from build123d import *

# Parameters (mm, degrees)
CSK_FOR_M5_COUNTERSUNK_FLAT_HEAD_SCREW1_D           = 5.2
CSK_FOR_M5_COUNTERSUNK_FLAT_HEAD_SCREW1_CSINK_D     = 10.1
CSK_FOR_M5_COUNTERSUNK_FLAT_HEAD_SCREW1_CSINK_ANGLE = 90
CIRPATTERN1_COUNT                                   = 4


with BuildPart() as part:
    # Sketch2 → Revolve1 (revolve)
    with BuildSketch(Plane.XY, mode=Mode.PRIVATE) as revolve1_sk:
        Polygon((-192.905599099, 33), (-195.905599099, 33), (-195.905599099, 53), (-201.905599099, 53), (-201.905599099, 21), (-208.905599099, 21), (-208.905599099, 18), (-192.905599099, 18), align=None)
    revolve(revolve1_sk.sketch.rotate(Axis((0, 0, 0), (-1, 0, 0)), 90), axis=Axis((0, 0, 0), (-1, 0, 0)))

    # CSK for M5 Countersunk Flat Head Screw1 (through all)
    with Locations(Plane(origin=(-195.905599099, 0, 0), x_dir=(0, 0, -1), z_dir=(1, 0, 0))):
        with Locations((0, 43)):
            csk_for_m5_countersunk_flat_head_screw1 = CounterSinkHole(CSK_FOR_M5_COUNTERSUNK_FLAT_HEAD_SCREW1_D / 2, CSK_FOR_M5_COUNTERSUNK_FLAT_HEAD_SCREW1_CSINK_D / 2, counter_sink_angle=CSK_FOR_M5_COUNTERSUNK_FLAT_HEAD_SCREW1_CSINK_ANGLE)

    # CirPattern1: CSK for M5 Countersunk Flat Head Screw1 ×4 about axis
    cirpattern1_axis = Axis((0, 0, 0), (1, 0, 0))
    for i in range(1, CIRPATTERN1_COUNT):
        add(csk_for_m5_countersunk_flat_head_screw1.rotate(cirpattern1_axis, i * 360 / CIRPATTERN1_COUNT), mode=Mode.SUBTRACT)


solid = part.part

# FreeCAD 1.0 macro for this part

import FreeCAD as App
import Part
import Sketcher

V = App.Vector
Q = App.Units.Quantity

doc = App.newDocument("Part")
body = doc.addObject("PartDesign::Body", "Body")

# Sketch on XY plane
sketch1 = body.newObject("Sketcher::SketchObject", "Sketch")
sketch1.AttachmentSupport = (doc.getObject("XY_Plane"), [""])
sketch1.MapMode = "FlatFace"
sketch1.addGeometry([
    Part.LineSegment(V(-192.905599, 33, 0), V(-195.905599, 33, 0)),  # 0
    Part.LineSegment(V(-195.905599, 33, 0), V(-195.905599, 53, 0)),  # 1
    Part.LineSegment(V(-195.905599, 53, 0), V(-201.905599, 53, 0)),  # 2
    Part.LineSegment(V(-201.905599, 53, 0), V(-201.905599, 21, 0)),  # 3
    Part.LineSegment(V(-201.905599, 21, 0), V(-208.905599, 21, 0)),  # 4
    Part.LineSegment(V(-208.905599, 21, 0), V(-208.905599, 18, 0)),  # 5
    Part.LineSegment(V(-208.905599, 18, 0), V(-192.905599, 18, 0)),  # 6
    Part.LineSegment(V(-192.905599, 18, 0), V(-192.905599, 33, 0)),  # 7
], False)
sketch1.addConstraint([
    Sketcher.Constraint("Coincident", 0, 2, 1, 1),
    Sketcher.Constraint("Coincident", 1, 2, 2, 1),
    Sketcher.Constraint("Coincident", 2, 2, 3, 1),
    Sketcher.Constraint("Coincident", 3, 2, 4, 1),
    Sketcher.Constraint("Coincident", 4, 2, 5, 1),
    Sketcher.Constraint("Coincident", 5, 2, 6, 1),
    Sketcher.Constraint("Coincident", 6, 2, 7, 1),
    Sketcher.Constraint("Coincident", 7, 2, 0, 1),
    Sketcher.Constraint("Horizontal", 0),
    Sketcher.Constraint("Vertical", 1),
    Sketcher.Constraint("Horizontal", 2),
    Sketcher.Constraint("Vertical", 3),
    Sketcher.Constraint("Horizontal", 4),
    Sketcher.Constraint("Vertical", 5),
    Sketcher.Constraint("Horizontal", 6),
    Sketcher.Constraint("Vertical", 7),
    Sketcher.Constraint("Equal", 0, 5),
    Sketcher.Constraint("DistanceX", 0, 2, 0, 1, Q("3 mm")),
    Sketcher.Constraint("DistanceX", 2, 2, 2, 1, Q("6 mm")),
    Sketcher.Constraint("DistanceX", 4, 2, 4, 1, Q("7 mm")),
    Sketcher.Constraint("DistanceY", 1, 1, 1, 2, Q("20 mm")),
    Sketcher.Constraint("DistanceY", 3, 2, 3, 1, Q("32 mm")),
    Sketcher.Constraint("DistanceY", -1, 1, 0, 2, Q("33 mm")),
    Sketcher.Constraint("DistanceX", 0, 2, -1, 1, Q("195.905599 mm")),
])
revolution = body.newObject("PartDesign::Revolution", "Revolution")
revolution.Profile = sketch1
revolution.ReferenceAxis = (sketch1, ["H_Axis"])
revolution.Angle = 360

# Sketch on YZ plane
sketch2 = body.newObject("Sketcher::SketchObject", "Sketch001")
sketch2.AttachmentSupport = (doc.getObject("YZ_Plane"), [""])
sketch2.MapMode = "FlatFace"
sketch2.AttachmentOffset = App.Placement(V(0, 0, -195.905599), App.Rotation())
sketch2.addGeometry(Part.Circle(V(43, 0, 0), V(0, 0, 1), 2.6), False)
sketch2.addConstraint([
    Sketcher.Constraint("PointOnObject", 0, 3, -1),
    Sketcher.Constraint("Diameter", 0, Q("5.2 mm")),
    Sketcher.Constraint("DistanceX", -1, 1, 0, 3, Q("43 mm")),
])
doc.recompute()
hole = body.newObject("PartDesign::Hole", "Hole")
hole.Profile = sketch2
hole.ThreadType = "None"
hole.Diameter = 5.2
hole.DepthType = "ThroughAll"
hole.HoleCutType = "Countersink"
hole.HoleCutDiameter = 10.1
hole.HoleCutCountersinkAngle = 90
doc.recompute()

polarpattern = body.newObject("PartDesign::PolarPattern", "PolarPattern")
polarpattern.Originals = [hole]
polarpattern.Axis = (doc.getObject("X_Axis"), [""])
polarpattern.Angle = 360
polarpattern.Occurrences = 4
body.Tip = polarpattern

doc.recompute()
